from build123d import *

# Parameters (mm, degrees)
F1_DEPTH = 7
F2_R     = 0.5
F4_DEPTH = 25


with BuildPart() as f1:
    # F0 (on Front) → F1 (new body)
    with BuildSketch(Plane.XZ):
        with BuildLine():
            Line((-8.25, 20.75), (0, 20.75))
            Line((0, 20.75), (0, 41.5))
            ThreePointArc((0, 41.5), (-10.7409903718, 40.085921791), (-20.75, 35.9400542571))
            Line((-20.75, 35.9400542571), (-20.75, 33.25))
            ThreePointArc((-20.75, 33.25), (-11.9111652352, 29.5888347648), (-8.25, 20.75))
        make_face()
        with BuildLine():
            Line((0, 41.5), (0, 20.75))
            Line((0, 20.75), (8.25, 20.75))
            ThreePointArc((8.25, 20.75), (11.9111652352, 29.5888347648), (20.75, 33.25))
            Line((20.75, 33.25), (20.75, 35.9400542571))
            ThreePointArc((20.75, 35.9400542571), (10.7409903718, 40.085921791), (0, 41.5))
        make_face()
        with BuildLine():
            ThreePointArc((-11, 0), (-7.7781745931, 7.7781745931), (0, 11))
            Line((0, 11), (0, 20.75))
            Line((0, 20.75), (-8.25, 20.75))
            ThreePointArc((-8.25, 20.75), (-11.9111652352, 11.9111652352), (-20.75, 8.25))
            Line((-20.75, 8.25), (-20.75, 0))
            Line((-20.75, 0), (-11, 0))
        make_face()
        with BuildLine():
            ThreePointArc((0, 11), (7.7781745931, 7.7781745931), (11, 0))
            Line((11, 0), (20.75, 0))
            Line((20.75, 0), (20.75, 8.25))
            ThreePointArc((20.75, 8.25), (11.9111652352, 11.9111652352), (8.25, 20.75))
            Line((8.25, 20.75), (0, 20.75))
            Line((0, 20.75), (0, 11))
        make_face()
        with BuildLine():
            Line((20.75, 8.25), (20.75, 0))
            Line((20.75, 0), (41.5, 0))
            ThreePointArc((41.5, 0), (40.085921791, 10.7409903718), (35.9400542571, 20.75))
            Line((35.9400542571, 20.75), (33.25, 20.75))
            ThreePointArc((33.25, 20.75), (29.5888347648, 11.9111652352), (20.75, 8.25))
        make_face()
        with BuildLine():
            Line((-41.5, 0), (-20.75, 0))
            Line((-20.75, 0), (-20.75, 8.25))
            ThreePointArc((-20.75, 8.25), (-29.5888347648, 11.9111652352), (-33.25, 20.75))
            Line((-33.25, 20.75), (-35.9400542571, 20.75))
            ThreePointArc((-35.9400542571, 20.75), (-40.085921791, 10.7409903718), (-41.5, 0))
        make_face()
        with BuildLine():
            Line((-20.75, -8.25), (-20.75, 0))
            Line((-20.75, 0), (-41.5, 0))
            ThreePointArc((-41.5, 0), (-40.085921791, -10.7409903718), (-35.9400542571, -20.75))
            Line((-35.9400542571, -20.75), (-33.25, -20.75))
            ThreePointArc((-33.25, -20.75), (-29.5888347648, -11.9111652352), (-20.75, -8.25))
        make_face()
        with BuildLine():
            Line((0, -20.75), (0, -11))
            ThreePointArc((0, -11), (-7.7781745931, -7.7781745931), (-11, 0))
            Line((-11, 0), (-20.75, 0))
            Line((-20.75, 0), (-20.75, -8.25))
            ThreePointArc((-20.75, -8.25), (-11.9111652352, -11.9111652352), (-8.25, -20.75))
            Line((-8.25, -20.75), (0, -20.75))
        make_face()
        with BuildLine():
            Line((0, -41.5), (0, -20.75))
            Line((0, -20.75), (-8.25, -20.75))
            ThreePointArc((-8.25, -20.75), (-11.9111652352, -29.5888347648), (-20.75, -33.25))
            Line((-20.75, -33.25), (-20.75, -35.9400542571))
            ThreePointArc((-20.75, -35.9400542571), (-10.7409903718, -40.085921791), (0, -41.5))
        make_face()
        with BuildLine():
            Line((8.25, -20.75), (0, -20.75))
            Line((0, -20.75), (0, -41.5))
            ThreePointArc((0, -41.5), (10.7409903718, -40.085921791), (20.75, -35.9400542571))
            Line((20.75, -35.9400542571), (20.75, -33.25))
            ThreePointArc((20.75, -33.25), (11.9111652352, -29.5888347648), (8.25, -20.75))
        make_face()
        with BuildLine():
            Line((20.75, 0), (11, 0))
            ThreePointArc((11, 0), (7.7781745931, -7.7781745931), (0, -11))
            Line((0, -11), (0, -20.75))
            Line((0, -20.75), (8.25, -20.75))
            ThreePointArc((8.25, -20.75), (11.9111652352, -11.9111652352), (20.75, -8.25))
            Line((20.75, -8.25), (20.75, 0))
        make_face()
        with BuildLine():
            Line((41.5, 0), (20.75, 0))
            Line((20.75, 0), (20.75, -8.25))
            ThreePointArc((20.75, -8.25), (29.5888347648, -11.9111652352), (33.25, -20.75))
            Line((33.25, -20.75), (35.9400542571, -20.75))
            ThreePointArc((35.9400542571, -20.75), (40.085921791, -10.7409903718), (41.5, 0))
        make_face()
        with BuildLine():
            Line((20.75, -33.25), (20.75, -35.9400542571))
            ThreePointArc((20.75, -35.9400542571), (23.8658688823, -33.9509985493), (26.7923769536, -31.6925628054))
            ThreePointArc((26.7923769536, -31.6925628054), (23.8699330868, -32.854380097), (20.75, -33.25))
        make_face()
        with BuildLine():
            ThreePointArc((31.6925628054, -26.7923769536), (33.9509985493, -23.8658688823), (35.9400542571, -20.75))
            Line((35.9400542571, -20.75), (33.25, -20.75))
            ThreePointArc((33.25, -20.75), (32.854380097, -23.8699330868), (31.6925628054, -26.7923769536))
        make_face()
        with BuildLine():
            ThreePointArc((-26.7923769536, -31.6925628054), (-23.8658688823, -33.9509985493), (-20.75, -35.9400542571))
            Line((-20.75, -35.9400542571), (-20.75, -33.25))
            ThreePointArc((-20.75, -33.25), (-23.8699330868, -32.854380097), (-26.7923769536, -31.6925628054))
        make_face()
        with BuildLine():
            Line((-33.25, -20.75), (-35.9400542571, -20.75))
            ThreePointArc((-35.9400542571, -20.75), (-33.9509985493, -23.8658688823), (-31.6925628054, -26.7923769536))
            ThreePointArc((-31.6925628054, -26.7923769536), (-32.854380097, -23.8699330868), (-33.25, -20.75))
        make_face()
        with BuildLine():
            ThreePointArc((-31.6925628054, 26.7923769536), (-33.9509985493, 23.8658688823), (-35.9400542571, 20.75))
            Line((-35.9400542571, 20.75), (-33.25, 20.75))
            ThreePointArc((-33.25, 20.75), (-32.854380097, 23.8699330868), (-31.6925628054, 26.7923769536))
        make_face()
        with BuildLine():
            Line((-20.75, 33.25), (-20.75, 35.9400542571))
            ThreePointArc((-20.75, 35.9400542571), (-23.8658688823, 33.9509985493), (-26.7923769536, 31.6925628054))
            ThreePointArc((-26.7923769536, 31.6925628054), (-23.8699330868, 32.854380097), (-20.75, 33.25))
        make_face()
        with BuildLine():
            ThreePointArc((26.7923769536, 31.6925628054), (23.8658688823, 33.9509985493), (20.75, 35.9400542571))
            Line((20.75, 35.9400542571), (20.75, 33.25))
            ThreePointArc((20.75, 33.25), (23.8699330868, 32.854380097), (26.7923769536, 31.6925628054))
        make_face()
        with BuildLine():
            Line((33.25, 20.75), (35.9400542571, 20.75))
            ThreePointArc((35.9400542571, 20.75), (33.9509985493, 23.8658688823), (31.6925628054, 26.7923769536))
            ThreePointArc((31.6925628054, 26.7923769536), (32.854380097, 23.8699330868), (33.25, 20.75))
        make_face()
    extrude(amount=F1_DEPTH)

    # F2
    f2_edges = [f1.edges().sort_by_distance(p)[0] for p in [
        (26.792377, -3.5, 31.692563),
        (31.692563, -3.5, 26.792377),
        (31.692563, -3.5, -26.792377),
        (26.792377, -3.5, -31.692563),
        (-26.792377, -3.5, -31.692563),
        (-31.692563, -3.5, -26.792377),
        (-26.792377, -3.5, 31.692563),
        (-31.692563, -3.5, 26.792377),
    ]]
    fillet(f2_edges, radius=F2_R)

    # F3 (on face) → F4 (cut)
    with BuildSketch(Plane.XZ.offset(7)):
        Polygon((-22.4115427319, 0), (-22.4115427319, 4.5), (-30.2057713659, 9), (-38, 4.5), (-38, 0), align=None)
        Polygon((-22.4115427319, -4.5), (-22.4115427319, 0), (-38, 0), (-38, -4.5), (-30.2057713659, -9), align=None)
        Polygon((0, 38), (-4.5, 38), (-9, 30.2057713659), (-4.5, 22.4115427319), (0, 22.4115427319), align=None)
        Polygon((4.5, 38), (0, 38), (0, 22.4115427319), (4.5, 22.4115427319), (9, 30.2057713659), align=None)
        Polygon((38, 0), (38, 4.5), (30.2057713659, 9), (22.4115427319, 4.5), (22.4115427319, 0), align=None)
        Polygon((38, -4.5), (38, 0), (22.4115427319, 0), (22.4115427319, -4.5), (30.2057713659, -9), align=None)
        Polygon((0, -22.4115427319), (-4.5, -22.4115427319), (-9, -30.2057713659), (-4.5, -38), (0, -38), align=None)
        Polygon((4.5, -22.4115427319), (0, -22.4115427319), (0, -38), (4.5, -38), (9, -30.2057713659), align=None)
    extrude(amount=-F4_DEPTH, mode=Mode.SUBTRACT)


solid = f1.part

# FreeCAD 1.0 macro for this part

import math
import FreeCAD as App
import Part
import Sketcher
Q = App.Units.Quantity


def edges_at(feature, points):
    """Names of the edges that pass closest to the given points."""
    edges = feature.Shape.Edges
    near = lambda p: min(range(len(edges)), key=lambda i: edges[i].distToShape(Part.Vertex(*p))[0])
    return sorted({f"Edge{near(p) + 1}" for p in points})

doc = App.newDocument("Part")
params = doc.addObject("Spreadsheet::Sheet", "Params")
for row, (alias, value) in enumerate([
    ("sketch1_radius", "11 mm"),
    ("sketch1_radius2", "12.5 mm"),
    ("sketch1_radius3", "41.5 mm"),
    ("pad1_length", "7 mm"),
    ("fillet_radius", "0.5 mm"),
    ("sketch2_width", "9 mm"),
    ("sketch2_length", "9 mm"),
    ("pocket1_length", "25 mm"),
], start=1):
    params.set(f"A{row}", alias)
    params.set(f"B{row}", "=" + value)
    params.setAlias(f"B{row}", alias)

body = doc.addObject("PartDesign::Body", "Body")

sketch1 = body.newObject("Sketcher::SketchObject", "Sketch")
sketch1.AttachmentSupport = (doc.getObject("XZ_Plane"), [""])
sketch1.MapMode = "FlatFace"
sketch1.addGeometry([
    Part.ArcOfCircle(Part.Circle(App.Vector(20.75, 20.75, 0), App.Vector(0, 0, 1), 12.5), math.radians(90), math.radians(180)),
    Part.ArcOfCircle(Part.Circle(App.Vector(20.75, 20.75, 0), App.Vector(0, 0, 1), 12.5), math.radians(61.092946), math.radians(90)),
    Part.ArcOfCircle(Part.Circle(App.Vector(0, 0, 0), App.Vector(0, 0, 1), 41.5), math.radians(49.789365), math.radians(60)),
    Part.ArcOfCircle(Part.Circle(App.Vector(0, 0, 0), App.Vector(0, 0, 1), 41.5), math.radians(60), math.radians(90)),
    Part.ArcOfCircle(Part.Circle(App.Vector(0, 0, 0), App.Vector(0, 0, 1), 41.5), math.radians(90), math.radians(120)),
    Part.ArcOfCircle(Part.Circle(App.Vector(0, 0, 0), App.Vector(0, 0, 1), 41.5), math.radians(120), math.radians(130.210635)),
    Part.ArcOfCircle(Part.Circle(App.Vector(-20.75, 20.75, 0), App.Vector(0, 0, 1), 12.5), math.radians(90), math.radians(118.907054)),
    Part.ArcOfCircle(Part.Circle(App.Vector(-20.75, 20.75, 0), App.Vector(0, 0, 1), 12.5), math.radians(0), math.radians(90)),
    Part.ArcOfCircle(Part.Circle(App.Vector(-20.75, 20.75, 0), App.Vector(0, 0, 1), 12.5), math.radians(-90), math.radians(0)),
    Part.ArcOfCircle(Part.Circle(App.Vector(-20.75, 20.75, 0), App.Vector(0, 0, 1), 12.5), math.radians(180), math.radians(270)),
    Part.ArcOfCircle(Part.Circle(App.Vector(-20.75, 20.75, 0), App.Vector(0, 0, 1), 12.5), math.radians(151.092946), math.radians(180)),
    Part.ArcOfCircle(Part.Circle(App.Vector(0, 0, 0), App.Vector(0, 0, 1), 41.5), math.radians(139.789365), math.radians(150)),
    Part.ArcOfCircle(Part.Circle(App.Vector(0, 0, 0), App.Vector(0, 0, 1), 41.5), math.radians(150), math.radians(180)),
    Part.ArcOfCircle(Part.Circle(App.Vector(0, 0, 0), App.Vector(0, 0, 1), 41.5), math.radians(180), math.radians(210)),
    Part.ArcOfCircle(Part.Circle(App.Vector(0, 0, 0), App.Vector(0, 0, 1), 41.5), math.radians(-150), math.radians(-139.789365)),
    Part.ArcOfCircle(Part.Circle(App.Vector(-20.75, -20.75, 0), App.Vector(0, 0, 1), 12.5), math.radians(180), math.radians(208.907054)),
    Part.ArcOfCircle(Part.Circle(App.Vector(-20.75, -20.75, 0), App.Vector(0, 0, 1), 12.5), math.radians(90), math.radians(180)),
    Part.ArcOfCircle(Part.Circle(App.Vector(-20.75, -20.75, 0), App.Vector(0, 0, 1), 12.5), math.radians(0), math.radians(90)),
    Part.ArcOfCircle(Part.Circle(App.Vector(-20.75, -20.75, 0), App.Vector(0, 0, 1), 12.5), math.radians(-90), math.radians(0)),
    Part.ArcOfCircle(Part.Circle(App.Vector(-20.75, -20.75, 0), App.Vector(0, 0, 1), 12.5), math.radians(-118.907054), math.radians(-90)),
    Part.ArcOfCircle(Part.Circle(App.Vector(0, 0, 0), App.Vector(0, 0, 1), 41.5), math.radians(-130.210635), math.radians(-120)),
    Part.ArcOfCircle(Part.Circle(App.Vector(0, 0, 0), App.Vector(0, 0, 1), 41.5), math.radians(-120), math.radians(-90)),
    Part.ArcOfCircle(Part.Circle(App.Vector(0, 0, 0), App.Vector(0, 0, 1), 41.5), math.radians(-90), math.radians(-60)),
    Part.ArcOfCircle(Part.Circle(App.Vector(0, 0, 0), App.Vector(0, 0, 1), 41.5), math.radians(-60), math.radians(-49.789365)),
    Part.ArcOfCircle(Part.Circle(App.Vector(20.75, -20.75, 0), App.Vector(0, 0, 1), 12.5), math.radians(-90), math.radians(-61.092946)),
    Part.ArcOfCircle(Part.Circle(App.Vector(20.75, -20.75, 0), App.Vector(0, 0, 1), 12.5), math.radians(180), math.radians(270)),
    Part.ArcOfCircle(Part.Circle(App.Vector(20.75, -20.75, 0), App.Vector(0, 0, 1), 12.5), math.radians(90), math.radians(180)),
    Part.ArcOfCircle(Part.Circle(App.Vector(20.75, -20.75, 0), App.Vector(0, 0, 1), 12.5), math.radians(0), math.radians(90)),
    Part.ArcOfCircle(Part.Circle(App.Vector(20.75, -20.75, 0), App.Vector(0, 0, 1), 12.5), math.radians(-28.907054), math.radians(0)),
    Part.ArcOfCircle(Part.Circle(App.Vector(0, 0, 0), App.Vector(0, 0, 1), 41.5), math.radians(-40.210635), math.radians(-30)),
    Part.ArcOfCircle(Part.Circle(App.Vector(0, 0, 0), App.Vector(0, 0, 1), 41.5), math.radians(-30), math.radians(0)),
    Part.ArcOfCircle(Part.Circle(App.Vector(0, 0, 0), App.Vector(0, 0, 1), 41.5), math.radians(0), math.radians(30)),
    Part.ArcOfCircle(Part.Circle(App.Vector(0, 0, 0), App.Vector(0, 0, 1), 41.5), math.radians(30), math.radians(40.210635)),
    Part.ArcOfCircle(Part.Circle(App.Vector(20.75, 20.75, 0), App.Vector(0, 0, 1), 12.5), math.radians(0), math.radians(28.907054)),
    Part.ArcOfCircle(Part.Circle(App.Vector(20.75, 20.75, 0), App.Vector(0, 0, 1), 12.5), math.radians(-90), math.radians(0)),
    Part.ArcOfCircle(Part.Circle(App.Vector(20.75, 20.75, 0), App.Vector(0, 0, 1), 12.5), math.radians(180), math.radians(270)),
    Part.ArcOfCircle(Part.Circle(App.Vector(0, 0, 0), App.Vector(0, 0, 1), 11), math.radians(180), math.radians(270)),
    Part.ArcOfCircle(Part.Circle(App.Vector(0, 0, 0), App.Vector(0, 0, 1), 11), math.radians(90), math.radians(180)),
    Part.ArcOfCircle(Part.Circle(App.Vector(0, 0, 0), App.Vector(0, 0, 1), 11), math.radians(0), math.radians(90)),
    Part.ArcOfCircle(Part.Circle(App.Vector(0, 0, 0), App.Vector(0, 0, 1), 11), math.radians(-90), math.radians(0)),
], False)
sketch1.addConstraint([
    Sketcher.Constraint("Tangent", 0, 1, 1, 2),
    Sketcher.Constraint("Coincident", 1, 1, 2, 1),
    Sketcher.Constraint("Tangent", 2, 2, 3, 1),
    Sketcher.Constraint("Tangent", 3, 2, 4, 1),
    Sketcher.Constraint("Tangent", 4, 2, 5, 1),
    Sketcher.Constraint("Coincident", 5, 2, 6, 2),
    Sketcher.Constraint("Tangent", 6, 1, 7, 2),
    Sketcher.Constraint("Tangent", 7, 1, 8, 2),
    Sketcher.Constraint("Tangent", 8, 1, 9, 2),
    Sketcher.Constraint("Tangent", 9, 1, 10, 2),
    Sketcher.Constraint("Coincident", 10, 1, 11, 1),
    Sketcher.Constraint("Tangent", 11, 2, 12, 1),
    Sketcher.Constraint("Tangent", 12, 2, 13, 1),
    Sketcher.Constraint("Tangent", 13, 2, 14, 1),
    Sketcher.Constraint("Coincident", 14, 2, 15, 2),
    Sketcher.Constraint("Tangent", 15, 1, 16, 2),
    Sketcher.Constraint("Tangent", 16, 1, 17, 2),
    Sketcher.Constraint("Tangent", 17, 1, 18, 2),
    Sketcher.Constraint("Tangent", 18, 1, 19, 2),
    Sketcher.Constraint("Coincident", 19, 1, 20, 1),
    Sketcher.Constraint("Tangent", 20, 2, 21, 1),
    Sketcher.Constraint("Tangent", 21, 2, 22, 1),
    Sketcher.Constraint("Tangent", 22, 2, 23, 1),
    Sketcher.Constraint("Coincident", 23, 2, 24, 2),
    Sketcher.Constraint("Tangent", 24, 1, 25, 2),
    Sketcher.Constraint("Tangent", 25, 1, 26, 2),
    Sketcher.Constraint("Tangent", 26, 1, 27, 2),
    Sketcher.Constraint("Tangent", 27, 1, 28, 2),
    Sketcher.Constraint("Coincident", 28, 1, 29, 1),
    Sketcher.Constraint("Tangent", 29, 2, 30, 1),
    Sketcher.Constraint("Tangent", 30, 2, 31, 1),
    Sketcher.Constraint("Tangent", 31, 2, 32, 1),
    Sketcher.Constraint("Coincident", 32, 2, 33, 2),
    Sketcher.Constraint("Tangent", 33, 1, 34, 2),
    Sketcher.Constraint("Tangent", 34, 1, 35, 2),
    Sketcher.Constraint("Tangent", 35, 1, 0, 2),
    Sketcher.Constraint("Tangent", 36, 1, 37, 2),
    Sketcher.Constraint("Tangent", 37, 1, 38, 2),
    Sketcher.Constraint("Tangent", 38, 1, 39, 2),
    Sketcher.Constraint("Tangent", 39, 1, 36, 2),
    Sketcher.Constraint("Coincident", 2, 3, -1, 1),
    Sketcher.Constraint("Coincident", 4, 3, -1, 1),
    Sketcher.Constraint("Coincident", 11, 3, -1, 1),
    Sketcher.Constraint("Coincident", 13, 3, -1, 1),
    Sketcher.Constraint("Coincident", 20, 3, -1, 1),
    Sketcher.Constraint("Coincident", 22, 3, -1, 1),
    Sketcher.Constraint("Coincident", 29, 3, -1, 1),
    Sketcher.Constraint("Coincident", 31, 3, -1, 1),
    Sketcher.Constraint("Coincident", 36, 3, -1, 1),
    Sketcher.Constraint("Coincident", 8, 3, 6, 3),
    Sketcher.Constraint("Coincident", 10, 3, 6, 3),
    Sketcher.Constraint("Coincident", 17, 3, 15, 3),
    Sketcher.Constraint("Coincident", 19, 3, 15, 3),
    Sketcher.Constraint("Coincident", 26, 3, 24, 3),
    Sketcher.Constraint("Coincident", 28, 3, 24, 3),
    Sketcher.Constraint("Coincident", 33, 3, 0, 3),
    Sketcher.Constraint("Equal", 0, 1),
    Sketcher.Constraint("Equal", 4, 5),
    Sketcher.Constraint("Equal", 1, 6),
    Sketcher.Constraint("Equal", 5, 11),
    Sketcher.Constraint("Equal", 13, 14),
    Sketcher.Constraint("Equal", 10, 15),
    Sketcher.Constraint("Equal", 14, 20),
    Sketcher.Constraint("Equal", 22, 23),
    Sketcher.Constraint("Equal", 19, 24),
    Sketcher.Constraint("Equal", 23, 29),
    Sketcher.Constraint("Equal", 31, 32),
    Sketcher.Constraint("Equal", 28, 33),
    Sketcher.Constraint("Equal", 36, 37),
    Sketcher.Constraint("Symmetric", 0, 3, 15, 3, -1, 1),
    Sketcher.Constraint("Symmetric", 6, 3, 24, 3, -1, 1),
    Sketcher.Constraint("Symmetric", 0, 3, 6, 3, -2),
    Sketcher.Constraint("PointOnObject", 3, 2, -2),
    Sketcher.Constraint("PointOnObject", 12, 2, -1),
    Sketcher.Constraint("PointOnObject", 21, 2, -2),
    Sketcher.Constraint("PointOnObject", 30, 2, -1),
    Sketcher.Constraint("PointOnObject", 36, 1, -1),
    Sketcher.Constraint("PointOnObject", 37, 1, -2),
    Sketcher.Constraint("PointOnObject", 38, 1, -1),
    Sketcher.Constraint("PointOnObject", 39, 1, -2),
    Sketcher.Constraint("Horizontal", 2, 2, 4, 2),
    Sketcher.Constraint("Horizontal", 35, 3, 7, 1),
    Sketcher.Constraint("Horizontal", 7, 1, 9, 1),
    Sketcher.Constraint("Horizontal", 9, 1, 11, 2),
    Sketcher.Constraint("Horizontal", 28, 3, 13, 2),
    Sketcher.Constraint("Horizontal", 13, 2, 15, 1),
    Sketcher.Constraint("Horizontal", 15, 1, 17, 1),
    Sketcher.Constraint("Horizontal", 20, 2, 22, 2),
    Sketcher.Constraint("Horizontal", 17, 1, 25, 1),
    Sketcher.Constraint("Horizontal", 25, 1, 27, 1),
    Sketcher.Constraint("Horizontal", 27, 1, 29, 2),
    Sketcher.Constraint("Horizontal", 11, 2, 31, 2),
    Sketcher.Constraint("Horizontal", 31, 2, 33, 1),
    Sketcher.Constraint("Horizontal", 33, 1, 35, 1),
    Sketcher.Constraint("Vertical", 35, 3, 0, 1),
    Sketcher.Constraint("Vertical", 0, 1, 2, 2),
    Sketcher.Constraint("Vertical", 4, 2, 6, 1),
    Sketcher.Constraint("Vertical", 6, 1, 8, 1),
    Sketcher.Constraint("Vertical", 8, 1, 16, 1),
    Sketcher.Constraint("Vertical", 16, 1, 18, 1),
    Sketcher.Constraint("Vertical", 18, 1, 20, 2),
    Sketcher.Constraint("Vertical", 22, 2, 24, 1),
    Sketcher.Constraint("Vertical", 24, 1, 26, 1),
    Sketcher.Constraint("Vertical", 26, 1, 34, 1),
    Sketcher.Constraint("Radius", 36, 11.0),
    Sketcher.Constraint("Radius", 0, 12.5),
    Sketcher.Constraint("Radius", 2, 41.5),
    Sketcher.Constraint("DistanceX", -1, 1, 0, 3, 20.75),
    Sketcher.Constraint("DistanceY", -1, 1, 0, 3, 20.75),
])
sketch1.setExpression("Constraints[104]", "Params.sketch1_radius")
sketch1.setExpression("Constraints[105]", "Params.sketch1_radius2")
sketch1.setExpression("Constraints[106]", "Params.sketch1_radius3")
pad1 = body.newObject("PartDesign::Pad", "Pad")
pad1.Profile = sketch1
pad1.setExpression("Length", "Params.pad1_length")
doc.recompute()

fillet = body.newObject("PartDesign::Fillet", "Fillet")
fillet.Base = (pad1, edges_at(pad1, [
    (26.792, -3.5, 31.693),
    (31.693, -3.5, 26.792),
    (31.693, -3.5, -26.792),
    (26.792, -3.5, -31.693),
    (-26.792, -3.5, -31.693),
    (-31.693, -3.5, -26.792),
    (-26.792, -3.5, 31.693),
    (-31.693, -3.5, 26.792),
]))
fillet.setExpression("Radius", "Params.fillet_radius")

sketch2 = body.newObject("Sketcher::SketchObject", "Sketch001")
sketch2.AttachmentSupport = (doc.getObject("XZ_Plane"), [""])
sketch2.MapMode = "FlatFace"
sketch2.AttachmentOffset = App.Placement(App.Vector(0, 0, 7), App.Rotation())
sketch2.addGeometry([
    Part.LineSegment(App.Vector(-22.411543, 4.5, 0), App.Vector(-30.205771, 9, 0)),
    Part.LineSegment(App.Vector(-30.205771, 9, 0), App.Vector(-38, 4.5, 0)),
    Part.LineSegment(App.Vector(-38, 4.5, 0), App.Vector(-38, -4.5, 0)),
    Part.LineSegment(App.Vector(-38, -4.5, 0), App.Vector(-30.205771, -9, 0)),
    Part.LineSegment(App.Vector(-30.205771, -9, 0), App.Vector(-22.411543, -4.5, 0)),
    Part.LineSegment(App.Vector(-22.411543, -4.5, 0), App.Vector(-22.411543, 4.5, 0)),
    Part.LineSegment(App.Vector(-4.5, 38, 0), App.Vector(-9, 30.205771, 0)),
    Part.LineSegment(App.Vector(-9, 30.205771, 0), App.Vector(-4.5, 22.411543, 0)),
    Part.LineSegment(App.Vector(-4.5, 22.411543, 0), App.Vector(4.5, 22.411543, 0)),
    Part.LineSegment(App.Vector(4.5, 22.411543, 0), App.Vector(9, 30.205771, 0)),
    Part.LineSegment(App.Vector(9, 30.205771, 0), App.Vector(4.5, 38, 0)),
    Part.LineSegment(App.Vector(4.5, 38, 0), App.Vector(-4.5, 38, 0)),
    Part.LineSegment(App.Vector(38, 4.5, 0), App.Vector(30.205771, 9, 0)),
    Part.LineSegment(App.Vector(30.205771, 9, 0), App.Vector(22.411543, 4.5, 0)),
    Part.LineSegment(App.Vector(22.411543, 4.5, 0), App.Vector(22.411543, -4.5, 0)),
    Part.LineSegment(App.Vector(22.411543, -4.5, 0), App.Vector(30.205771, -9, 0)),
    Part.LineSegment(App.Vector(30.205771, -9, 0), App.Vector(38, -4.5, 0)),
    Part.LineSegment(App.Vector(38, -4.5, 0), App.Vector(38, 4.5, 0)),
    Part.LineSegment(App.Vector(-4.5, -22.411543, 0), App.Vector(-9, -30.205771, 0)),
    Part.LineSegment(App.Vector(-9, -30.205771, 0), App.Vector(-4.5, -38, 0)),
    Part.LineSegment(App.Vector(-4.5, -38, 0), App.Vector(4.5, -38, 0)),
    Part.LineSegment(App.Vector(4.5, -38, 0), App.Vector(9, -30.205771, 0)),
    Part.LineSegment(App.Vector(9, -30.205771, 0), App.Vector(4.5, -22.411543, 0)),
    Part.LineSegment(App.Vector(4.5, -22.411543, 0), App.Vector(-4.5, -22.411543, 0)),
], False)
sketch2.addConstraint([
    Sketcher.Constraint("Coincident", 0, 2, 1, 1),
    Sketcher.Constraint("Coincident", 1, 2, 2, 1),
    Sketcher.Constraint("Coincident", 2, 2, 3, 1),
    Sketcher.Constraint("Coincident", 3, 2, 4, 1),
    Sketcher.Constraint("Coincident", 4, 2, 5, 1),
    Sketcher.Constraint("Coincident", 5, 2, 0, 1),
    Sketcher.Constraint("Coincident", 6, 2, 7, 1),
    Sketcher.Constraint("Coincident", 7, 2, 8, 1),
    Sketcher.Constraint("Coincident", 8, 2, 9, 1),
    Sketcher.Constraint("Coincident", 9, 2, 10, 1),
    Sketcher.Constraint("Coincident", 10, 2, 11, 1),
    Sketcher.Constraint("Coincident", 11, 2, 6, 1),
    Sketcher.Constraint("Coincident", 12, 2, 13, 1),
    Sketcher.Constraint("Coincident", 13, 2, 14, 1),
    Sketcher.Constraint("Coincident", 14, 2, 15, 1),
    Sketcher.Constraint("Coincident", 15, 2, 16, 1),
    Sketcher.Constraint("Coincident", 16, 2, 17, 1),
    Sketcher.Constraint("Coincident", 17, 2, 12, 1),
    Sketcher.Constraint("Coincident", 18, 2, 19, 1),
    Sketcher.Constraint("Coincident", 19, 2, 20, 1),
    Sketcher.Constraint("Coincident", 20, 2, 21, 1),
    Sketcher.Constraint("Coincident", 21, 2, 22, 1),
    Sketcher.Constraint("Coincident", 22, 2, 23, 1),
    Sketcher.Constraint("Coincident", 23, 2, 18, 1),
    Sketcher.Constraint("Vertical", 2),
    Sketcher.Constraint("Vertical", 5),
    Sketcher.Constraint("Horizontal", 8),
    Sketcher.Constraint("Horizontal", 11),
    Sketcher.Constraint("Vertical", 14),
    Sketcher.Constraint("Vertical", 17),
    Sketcher.Constraint("Horizontal", 20),
    Sketcher.Constraint("Horizontal", 23),
    Sketcher.Constraint("Symmetric", 3, 2, 12, 2, -1, 1),
    Sketcher.Constraint("Symmetric", 4, 2, 13, 2, -1, 1),
    Sketcher.Constraint("Symmetric", 0, 2, 15, 2, -1, 1),
    Sketcher.Constraint("Symmetric", 1, 2, 16, 2, -1, 1),
    Sketcher.Constraint("Symmetric", 9, 2, 18, 2, -1, 1),
    Sketcher.Constraint("Symmetric", 10, 2, 19, 2, -1, 1),
    Sketcher.Constraint("Symmetric", 6, 2, 21, 2, -1, 1),
    Sketcher.Constraint("Symmetric", 7, 2, 22, 2, -1, 1),
    Sketcher.Constraint("Symmetric", 6, 2, 9, 2, -2),
    Sketcher.Constraint("Symmetric", 0, 2, 12, 2, -2),
    Sketcher.Constraint("Parallel", 0, 3),
    Sketcher.Constraint("Parallel", 1, 4),
    Sketcher.Constraint("Perpendicular", 3, 6),
    Sketcher.Constraint("Perpendicular", 4, 7),
    Sketcher.Constraint("Parallel", 6, 9),
    Sketcher.Constraint("Parallel", 7, 10),
    Sketcher.Constraint("Perpendicular", 9, 12),
    Sketcher.Constraint("Parallel", 12, 15),
    Sketcher.Constraint("Perpendicular", 15, 18),
    Sketcher.Constraint("Parallel", 18, 21),
    Sketcher.Constraint("Horizontal", 2, 2, 4, 2),
    Sketcher.Constraint("Horizontal", 1, 2, 5, 2),
    Sketcher.Constraint("Vertical", 8, 2, 10, 2),
    Sketcher.Constraint("Equal", 23, 2),
    Sketcher.Constraint("Equal", 4, 6),
    Sketcher.Constraint("DistanceX", 8, 1, 8, 2, 9.0),
    Sketcher.Constraint("Angle", 0, Q("150 deg")),
    Sketcher.Constraint("Distance", 0, 9.0),
    Sketcher.Constraint("DistanceX", 1, 2, -1, 1, 38.0),
    Sketcher.Constraint("DistanceY", -1, 1, 10, 2, 38.0),
])
sketch2.setExpression("Constraints[57]", "Params.sketch2_width")
sketch2.setExpression("Constraints[59]", "Params.sketch2_length")
pocket1 = body.newObject("PartDesign::Pocket", "Pocket")
pocket1.Profile = sketch2
pocket1.setExpression("Length", "Params.pocket1_length")

doc.recompute()
